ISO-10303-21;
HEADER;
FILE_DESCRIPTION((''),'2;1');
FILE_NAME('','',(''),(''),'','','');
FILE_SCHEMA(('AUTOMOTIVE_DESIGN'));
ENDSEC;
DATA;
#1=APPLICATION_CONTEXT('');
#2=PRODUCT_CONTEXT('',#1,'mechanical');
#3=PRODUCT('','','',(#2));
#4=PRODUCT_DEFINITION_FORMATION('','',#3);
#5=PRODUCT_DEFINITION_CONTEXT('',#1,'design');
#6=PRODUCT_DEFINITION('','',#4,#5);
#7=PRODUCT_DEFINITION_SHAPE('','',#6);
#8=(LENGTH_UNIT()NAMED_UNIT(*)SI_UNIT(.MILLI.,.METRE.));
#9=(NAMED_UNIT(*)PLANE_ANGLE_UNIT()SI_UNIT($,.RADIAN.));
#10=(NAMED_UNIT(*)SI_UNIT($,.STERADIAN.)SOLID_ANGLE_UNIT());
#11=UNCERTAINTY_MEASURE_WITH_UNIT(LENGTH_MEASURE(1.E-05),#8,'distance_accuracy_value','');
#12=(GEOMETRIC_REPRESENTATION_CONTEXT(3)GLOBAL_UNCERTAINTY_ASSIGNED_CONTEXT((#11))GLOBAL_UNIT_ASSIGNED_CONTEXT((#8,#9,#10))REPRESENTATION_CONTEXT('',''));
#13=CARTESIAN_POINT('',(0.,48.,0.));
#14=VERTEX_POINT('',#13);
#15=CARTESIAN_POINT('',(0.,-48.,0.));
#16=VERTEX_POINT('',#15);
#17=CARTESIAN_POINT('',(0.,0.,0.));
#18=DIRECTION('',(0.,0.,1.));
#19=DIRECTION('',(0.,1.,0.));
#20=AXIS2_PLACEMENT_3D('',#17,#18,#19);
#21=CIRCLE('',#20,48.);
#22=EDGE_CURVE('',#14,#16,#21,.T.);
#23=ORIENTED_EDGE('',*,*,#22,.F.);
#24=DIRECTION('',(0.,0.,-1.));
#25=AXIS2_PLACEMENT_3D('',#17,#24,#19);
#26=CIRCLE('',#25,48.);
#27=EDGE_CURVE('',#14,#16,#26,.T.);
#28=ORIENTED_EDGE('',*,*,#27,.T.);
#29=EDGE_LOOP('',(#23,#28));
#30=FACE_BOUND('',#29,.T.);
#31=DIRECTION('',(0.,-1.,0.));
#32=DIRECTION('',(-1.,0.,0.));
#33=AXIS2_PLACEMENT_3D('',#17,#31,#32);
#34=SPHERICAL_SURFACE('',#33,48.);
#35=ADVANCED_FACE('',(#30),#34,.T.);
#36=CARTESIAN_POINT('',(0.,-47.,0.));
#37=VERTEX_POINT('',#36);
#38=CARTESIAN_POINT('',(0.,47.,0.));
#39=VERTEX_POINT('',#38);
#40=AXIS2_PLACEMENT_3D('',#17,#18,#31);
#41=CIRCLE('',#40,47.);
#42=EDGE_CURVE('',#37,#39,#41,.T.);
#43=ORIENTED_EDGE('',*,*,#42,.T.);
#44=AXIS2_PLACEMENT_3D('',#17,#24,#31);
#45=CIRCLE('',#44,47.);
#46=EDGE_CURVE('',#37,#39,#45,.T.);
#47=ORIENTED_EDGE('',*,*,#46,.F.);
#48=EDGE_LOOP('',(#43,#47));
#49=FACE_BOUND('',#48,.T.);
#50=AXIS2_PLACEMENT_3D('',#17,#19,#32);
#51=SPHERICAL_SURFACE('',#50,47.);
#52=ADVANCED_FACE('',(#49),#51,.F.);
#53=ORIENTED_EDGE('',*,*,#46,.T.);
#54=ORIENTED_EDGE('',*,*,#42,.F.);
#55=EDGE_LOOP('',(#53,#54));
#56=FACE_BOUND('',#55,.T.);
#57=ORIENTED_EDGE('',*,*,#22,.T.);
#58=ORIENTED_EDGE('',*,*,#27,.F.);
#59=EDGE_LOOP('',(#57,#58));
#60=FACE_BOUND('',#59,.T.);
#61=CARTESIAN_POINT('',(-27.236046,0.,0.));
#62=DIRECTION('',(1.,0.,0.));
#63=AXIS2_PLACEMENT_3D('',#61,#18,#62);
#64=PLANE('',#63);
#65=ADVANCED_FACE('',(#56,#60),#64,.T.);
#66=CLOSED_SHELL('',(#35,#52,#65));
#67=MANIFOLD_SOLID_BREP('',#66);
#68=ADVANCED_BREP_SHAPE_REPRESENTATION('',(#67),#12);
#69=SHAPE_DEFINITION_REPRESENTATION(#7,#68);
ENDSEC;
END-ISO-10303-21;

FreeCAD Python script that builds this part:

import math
import FreeCAD as App
import Part
import Sketcher
from FreeCAD import Vector

doc = App.newDocument("Part")
body = doc.addObject("PartDesign::Body", "Body")

sketch1 = doc.addObject("Sketcher::SketchObject", "Sketch")
body.addObject(sketch1)
sketch1.AttachmentSupport = (doc.XY_Plane, [""])
sketch1.MapMode = "FlatFace"
sketch1.addGeometry(Part.LineSegment(Vector(0, 47, 0), Vector(0, 48, 0)), False)
sketch1.addGeometry(Part.ArcOfCircle(Part.Circle(Vector(0, 0, 0), Vector(0, 0, 1), 48), math.radians(90), math.radians(270)), False)
sketch1.addGeometry(Part.LineSegment(Vector(0, -48, 0), Vector(0, -47, 0)), False)
sketch1.addGeometry(Part.ArcOfCircle(Part.Circle(Vector(0, 0, 0), Vector(0, 0, 1), 47), math.radians(90), math.radians(270)), False)
sketch1.addConstraint(Sketcher.Constraint("Coincident", 0, 2, 1, 1))
sketch1.addConstraint(Sketcher.Constraint("Coincident", 1, 2, 2, 1))
sketch1.addConstraint(Sketcher.Constraint("Coincident", 2, 2, 3, 2))
sketch1.addConstraint(Sketcher.Constraint("Coincident", 3, 1, 0, 1))
sketch1.addConstraint(Sketcher.Constraint("Vertical", 0))
sketch1.addConstraint(Sketcher.Constraint("Vertical", 2))
sketch1.addConstraint(Sketcher.Constraint("Coincident", 1, 3, -1, 1))
sketch1.addConstraint(Sketcher.Constraint("Coincident", 3, 3, -1, 1))
sketch1.addConstraint(Sketcher.Constraint("PointOnObject", 0, 2, -2))
sketch1.addConstraint(Sketcher.Constraint("PointOnObject", 1, 2, -2))
sketch1.addConstraint(Sketcher.Constraint("Radius", 1, 48.0))
sketch1.addConstraint(Sketcher.Constraint("Radius", 3, 47.0))
revolution = doc.addObject("PartDesign::Revolution", "Revolution")
body.addObject(revolution)
revolution.Profile = sketch1
revolution.ReferenceAxis = (sketch1, ["V_Axis"])
revolution.Angle = 180
revolution.Reversed = True

doc.recompute()
